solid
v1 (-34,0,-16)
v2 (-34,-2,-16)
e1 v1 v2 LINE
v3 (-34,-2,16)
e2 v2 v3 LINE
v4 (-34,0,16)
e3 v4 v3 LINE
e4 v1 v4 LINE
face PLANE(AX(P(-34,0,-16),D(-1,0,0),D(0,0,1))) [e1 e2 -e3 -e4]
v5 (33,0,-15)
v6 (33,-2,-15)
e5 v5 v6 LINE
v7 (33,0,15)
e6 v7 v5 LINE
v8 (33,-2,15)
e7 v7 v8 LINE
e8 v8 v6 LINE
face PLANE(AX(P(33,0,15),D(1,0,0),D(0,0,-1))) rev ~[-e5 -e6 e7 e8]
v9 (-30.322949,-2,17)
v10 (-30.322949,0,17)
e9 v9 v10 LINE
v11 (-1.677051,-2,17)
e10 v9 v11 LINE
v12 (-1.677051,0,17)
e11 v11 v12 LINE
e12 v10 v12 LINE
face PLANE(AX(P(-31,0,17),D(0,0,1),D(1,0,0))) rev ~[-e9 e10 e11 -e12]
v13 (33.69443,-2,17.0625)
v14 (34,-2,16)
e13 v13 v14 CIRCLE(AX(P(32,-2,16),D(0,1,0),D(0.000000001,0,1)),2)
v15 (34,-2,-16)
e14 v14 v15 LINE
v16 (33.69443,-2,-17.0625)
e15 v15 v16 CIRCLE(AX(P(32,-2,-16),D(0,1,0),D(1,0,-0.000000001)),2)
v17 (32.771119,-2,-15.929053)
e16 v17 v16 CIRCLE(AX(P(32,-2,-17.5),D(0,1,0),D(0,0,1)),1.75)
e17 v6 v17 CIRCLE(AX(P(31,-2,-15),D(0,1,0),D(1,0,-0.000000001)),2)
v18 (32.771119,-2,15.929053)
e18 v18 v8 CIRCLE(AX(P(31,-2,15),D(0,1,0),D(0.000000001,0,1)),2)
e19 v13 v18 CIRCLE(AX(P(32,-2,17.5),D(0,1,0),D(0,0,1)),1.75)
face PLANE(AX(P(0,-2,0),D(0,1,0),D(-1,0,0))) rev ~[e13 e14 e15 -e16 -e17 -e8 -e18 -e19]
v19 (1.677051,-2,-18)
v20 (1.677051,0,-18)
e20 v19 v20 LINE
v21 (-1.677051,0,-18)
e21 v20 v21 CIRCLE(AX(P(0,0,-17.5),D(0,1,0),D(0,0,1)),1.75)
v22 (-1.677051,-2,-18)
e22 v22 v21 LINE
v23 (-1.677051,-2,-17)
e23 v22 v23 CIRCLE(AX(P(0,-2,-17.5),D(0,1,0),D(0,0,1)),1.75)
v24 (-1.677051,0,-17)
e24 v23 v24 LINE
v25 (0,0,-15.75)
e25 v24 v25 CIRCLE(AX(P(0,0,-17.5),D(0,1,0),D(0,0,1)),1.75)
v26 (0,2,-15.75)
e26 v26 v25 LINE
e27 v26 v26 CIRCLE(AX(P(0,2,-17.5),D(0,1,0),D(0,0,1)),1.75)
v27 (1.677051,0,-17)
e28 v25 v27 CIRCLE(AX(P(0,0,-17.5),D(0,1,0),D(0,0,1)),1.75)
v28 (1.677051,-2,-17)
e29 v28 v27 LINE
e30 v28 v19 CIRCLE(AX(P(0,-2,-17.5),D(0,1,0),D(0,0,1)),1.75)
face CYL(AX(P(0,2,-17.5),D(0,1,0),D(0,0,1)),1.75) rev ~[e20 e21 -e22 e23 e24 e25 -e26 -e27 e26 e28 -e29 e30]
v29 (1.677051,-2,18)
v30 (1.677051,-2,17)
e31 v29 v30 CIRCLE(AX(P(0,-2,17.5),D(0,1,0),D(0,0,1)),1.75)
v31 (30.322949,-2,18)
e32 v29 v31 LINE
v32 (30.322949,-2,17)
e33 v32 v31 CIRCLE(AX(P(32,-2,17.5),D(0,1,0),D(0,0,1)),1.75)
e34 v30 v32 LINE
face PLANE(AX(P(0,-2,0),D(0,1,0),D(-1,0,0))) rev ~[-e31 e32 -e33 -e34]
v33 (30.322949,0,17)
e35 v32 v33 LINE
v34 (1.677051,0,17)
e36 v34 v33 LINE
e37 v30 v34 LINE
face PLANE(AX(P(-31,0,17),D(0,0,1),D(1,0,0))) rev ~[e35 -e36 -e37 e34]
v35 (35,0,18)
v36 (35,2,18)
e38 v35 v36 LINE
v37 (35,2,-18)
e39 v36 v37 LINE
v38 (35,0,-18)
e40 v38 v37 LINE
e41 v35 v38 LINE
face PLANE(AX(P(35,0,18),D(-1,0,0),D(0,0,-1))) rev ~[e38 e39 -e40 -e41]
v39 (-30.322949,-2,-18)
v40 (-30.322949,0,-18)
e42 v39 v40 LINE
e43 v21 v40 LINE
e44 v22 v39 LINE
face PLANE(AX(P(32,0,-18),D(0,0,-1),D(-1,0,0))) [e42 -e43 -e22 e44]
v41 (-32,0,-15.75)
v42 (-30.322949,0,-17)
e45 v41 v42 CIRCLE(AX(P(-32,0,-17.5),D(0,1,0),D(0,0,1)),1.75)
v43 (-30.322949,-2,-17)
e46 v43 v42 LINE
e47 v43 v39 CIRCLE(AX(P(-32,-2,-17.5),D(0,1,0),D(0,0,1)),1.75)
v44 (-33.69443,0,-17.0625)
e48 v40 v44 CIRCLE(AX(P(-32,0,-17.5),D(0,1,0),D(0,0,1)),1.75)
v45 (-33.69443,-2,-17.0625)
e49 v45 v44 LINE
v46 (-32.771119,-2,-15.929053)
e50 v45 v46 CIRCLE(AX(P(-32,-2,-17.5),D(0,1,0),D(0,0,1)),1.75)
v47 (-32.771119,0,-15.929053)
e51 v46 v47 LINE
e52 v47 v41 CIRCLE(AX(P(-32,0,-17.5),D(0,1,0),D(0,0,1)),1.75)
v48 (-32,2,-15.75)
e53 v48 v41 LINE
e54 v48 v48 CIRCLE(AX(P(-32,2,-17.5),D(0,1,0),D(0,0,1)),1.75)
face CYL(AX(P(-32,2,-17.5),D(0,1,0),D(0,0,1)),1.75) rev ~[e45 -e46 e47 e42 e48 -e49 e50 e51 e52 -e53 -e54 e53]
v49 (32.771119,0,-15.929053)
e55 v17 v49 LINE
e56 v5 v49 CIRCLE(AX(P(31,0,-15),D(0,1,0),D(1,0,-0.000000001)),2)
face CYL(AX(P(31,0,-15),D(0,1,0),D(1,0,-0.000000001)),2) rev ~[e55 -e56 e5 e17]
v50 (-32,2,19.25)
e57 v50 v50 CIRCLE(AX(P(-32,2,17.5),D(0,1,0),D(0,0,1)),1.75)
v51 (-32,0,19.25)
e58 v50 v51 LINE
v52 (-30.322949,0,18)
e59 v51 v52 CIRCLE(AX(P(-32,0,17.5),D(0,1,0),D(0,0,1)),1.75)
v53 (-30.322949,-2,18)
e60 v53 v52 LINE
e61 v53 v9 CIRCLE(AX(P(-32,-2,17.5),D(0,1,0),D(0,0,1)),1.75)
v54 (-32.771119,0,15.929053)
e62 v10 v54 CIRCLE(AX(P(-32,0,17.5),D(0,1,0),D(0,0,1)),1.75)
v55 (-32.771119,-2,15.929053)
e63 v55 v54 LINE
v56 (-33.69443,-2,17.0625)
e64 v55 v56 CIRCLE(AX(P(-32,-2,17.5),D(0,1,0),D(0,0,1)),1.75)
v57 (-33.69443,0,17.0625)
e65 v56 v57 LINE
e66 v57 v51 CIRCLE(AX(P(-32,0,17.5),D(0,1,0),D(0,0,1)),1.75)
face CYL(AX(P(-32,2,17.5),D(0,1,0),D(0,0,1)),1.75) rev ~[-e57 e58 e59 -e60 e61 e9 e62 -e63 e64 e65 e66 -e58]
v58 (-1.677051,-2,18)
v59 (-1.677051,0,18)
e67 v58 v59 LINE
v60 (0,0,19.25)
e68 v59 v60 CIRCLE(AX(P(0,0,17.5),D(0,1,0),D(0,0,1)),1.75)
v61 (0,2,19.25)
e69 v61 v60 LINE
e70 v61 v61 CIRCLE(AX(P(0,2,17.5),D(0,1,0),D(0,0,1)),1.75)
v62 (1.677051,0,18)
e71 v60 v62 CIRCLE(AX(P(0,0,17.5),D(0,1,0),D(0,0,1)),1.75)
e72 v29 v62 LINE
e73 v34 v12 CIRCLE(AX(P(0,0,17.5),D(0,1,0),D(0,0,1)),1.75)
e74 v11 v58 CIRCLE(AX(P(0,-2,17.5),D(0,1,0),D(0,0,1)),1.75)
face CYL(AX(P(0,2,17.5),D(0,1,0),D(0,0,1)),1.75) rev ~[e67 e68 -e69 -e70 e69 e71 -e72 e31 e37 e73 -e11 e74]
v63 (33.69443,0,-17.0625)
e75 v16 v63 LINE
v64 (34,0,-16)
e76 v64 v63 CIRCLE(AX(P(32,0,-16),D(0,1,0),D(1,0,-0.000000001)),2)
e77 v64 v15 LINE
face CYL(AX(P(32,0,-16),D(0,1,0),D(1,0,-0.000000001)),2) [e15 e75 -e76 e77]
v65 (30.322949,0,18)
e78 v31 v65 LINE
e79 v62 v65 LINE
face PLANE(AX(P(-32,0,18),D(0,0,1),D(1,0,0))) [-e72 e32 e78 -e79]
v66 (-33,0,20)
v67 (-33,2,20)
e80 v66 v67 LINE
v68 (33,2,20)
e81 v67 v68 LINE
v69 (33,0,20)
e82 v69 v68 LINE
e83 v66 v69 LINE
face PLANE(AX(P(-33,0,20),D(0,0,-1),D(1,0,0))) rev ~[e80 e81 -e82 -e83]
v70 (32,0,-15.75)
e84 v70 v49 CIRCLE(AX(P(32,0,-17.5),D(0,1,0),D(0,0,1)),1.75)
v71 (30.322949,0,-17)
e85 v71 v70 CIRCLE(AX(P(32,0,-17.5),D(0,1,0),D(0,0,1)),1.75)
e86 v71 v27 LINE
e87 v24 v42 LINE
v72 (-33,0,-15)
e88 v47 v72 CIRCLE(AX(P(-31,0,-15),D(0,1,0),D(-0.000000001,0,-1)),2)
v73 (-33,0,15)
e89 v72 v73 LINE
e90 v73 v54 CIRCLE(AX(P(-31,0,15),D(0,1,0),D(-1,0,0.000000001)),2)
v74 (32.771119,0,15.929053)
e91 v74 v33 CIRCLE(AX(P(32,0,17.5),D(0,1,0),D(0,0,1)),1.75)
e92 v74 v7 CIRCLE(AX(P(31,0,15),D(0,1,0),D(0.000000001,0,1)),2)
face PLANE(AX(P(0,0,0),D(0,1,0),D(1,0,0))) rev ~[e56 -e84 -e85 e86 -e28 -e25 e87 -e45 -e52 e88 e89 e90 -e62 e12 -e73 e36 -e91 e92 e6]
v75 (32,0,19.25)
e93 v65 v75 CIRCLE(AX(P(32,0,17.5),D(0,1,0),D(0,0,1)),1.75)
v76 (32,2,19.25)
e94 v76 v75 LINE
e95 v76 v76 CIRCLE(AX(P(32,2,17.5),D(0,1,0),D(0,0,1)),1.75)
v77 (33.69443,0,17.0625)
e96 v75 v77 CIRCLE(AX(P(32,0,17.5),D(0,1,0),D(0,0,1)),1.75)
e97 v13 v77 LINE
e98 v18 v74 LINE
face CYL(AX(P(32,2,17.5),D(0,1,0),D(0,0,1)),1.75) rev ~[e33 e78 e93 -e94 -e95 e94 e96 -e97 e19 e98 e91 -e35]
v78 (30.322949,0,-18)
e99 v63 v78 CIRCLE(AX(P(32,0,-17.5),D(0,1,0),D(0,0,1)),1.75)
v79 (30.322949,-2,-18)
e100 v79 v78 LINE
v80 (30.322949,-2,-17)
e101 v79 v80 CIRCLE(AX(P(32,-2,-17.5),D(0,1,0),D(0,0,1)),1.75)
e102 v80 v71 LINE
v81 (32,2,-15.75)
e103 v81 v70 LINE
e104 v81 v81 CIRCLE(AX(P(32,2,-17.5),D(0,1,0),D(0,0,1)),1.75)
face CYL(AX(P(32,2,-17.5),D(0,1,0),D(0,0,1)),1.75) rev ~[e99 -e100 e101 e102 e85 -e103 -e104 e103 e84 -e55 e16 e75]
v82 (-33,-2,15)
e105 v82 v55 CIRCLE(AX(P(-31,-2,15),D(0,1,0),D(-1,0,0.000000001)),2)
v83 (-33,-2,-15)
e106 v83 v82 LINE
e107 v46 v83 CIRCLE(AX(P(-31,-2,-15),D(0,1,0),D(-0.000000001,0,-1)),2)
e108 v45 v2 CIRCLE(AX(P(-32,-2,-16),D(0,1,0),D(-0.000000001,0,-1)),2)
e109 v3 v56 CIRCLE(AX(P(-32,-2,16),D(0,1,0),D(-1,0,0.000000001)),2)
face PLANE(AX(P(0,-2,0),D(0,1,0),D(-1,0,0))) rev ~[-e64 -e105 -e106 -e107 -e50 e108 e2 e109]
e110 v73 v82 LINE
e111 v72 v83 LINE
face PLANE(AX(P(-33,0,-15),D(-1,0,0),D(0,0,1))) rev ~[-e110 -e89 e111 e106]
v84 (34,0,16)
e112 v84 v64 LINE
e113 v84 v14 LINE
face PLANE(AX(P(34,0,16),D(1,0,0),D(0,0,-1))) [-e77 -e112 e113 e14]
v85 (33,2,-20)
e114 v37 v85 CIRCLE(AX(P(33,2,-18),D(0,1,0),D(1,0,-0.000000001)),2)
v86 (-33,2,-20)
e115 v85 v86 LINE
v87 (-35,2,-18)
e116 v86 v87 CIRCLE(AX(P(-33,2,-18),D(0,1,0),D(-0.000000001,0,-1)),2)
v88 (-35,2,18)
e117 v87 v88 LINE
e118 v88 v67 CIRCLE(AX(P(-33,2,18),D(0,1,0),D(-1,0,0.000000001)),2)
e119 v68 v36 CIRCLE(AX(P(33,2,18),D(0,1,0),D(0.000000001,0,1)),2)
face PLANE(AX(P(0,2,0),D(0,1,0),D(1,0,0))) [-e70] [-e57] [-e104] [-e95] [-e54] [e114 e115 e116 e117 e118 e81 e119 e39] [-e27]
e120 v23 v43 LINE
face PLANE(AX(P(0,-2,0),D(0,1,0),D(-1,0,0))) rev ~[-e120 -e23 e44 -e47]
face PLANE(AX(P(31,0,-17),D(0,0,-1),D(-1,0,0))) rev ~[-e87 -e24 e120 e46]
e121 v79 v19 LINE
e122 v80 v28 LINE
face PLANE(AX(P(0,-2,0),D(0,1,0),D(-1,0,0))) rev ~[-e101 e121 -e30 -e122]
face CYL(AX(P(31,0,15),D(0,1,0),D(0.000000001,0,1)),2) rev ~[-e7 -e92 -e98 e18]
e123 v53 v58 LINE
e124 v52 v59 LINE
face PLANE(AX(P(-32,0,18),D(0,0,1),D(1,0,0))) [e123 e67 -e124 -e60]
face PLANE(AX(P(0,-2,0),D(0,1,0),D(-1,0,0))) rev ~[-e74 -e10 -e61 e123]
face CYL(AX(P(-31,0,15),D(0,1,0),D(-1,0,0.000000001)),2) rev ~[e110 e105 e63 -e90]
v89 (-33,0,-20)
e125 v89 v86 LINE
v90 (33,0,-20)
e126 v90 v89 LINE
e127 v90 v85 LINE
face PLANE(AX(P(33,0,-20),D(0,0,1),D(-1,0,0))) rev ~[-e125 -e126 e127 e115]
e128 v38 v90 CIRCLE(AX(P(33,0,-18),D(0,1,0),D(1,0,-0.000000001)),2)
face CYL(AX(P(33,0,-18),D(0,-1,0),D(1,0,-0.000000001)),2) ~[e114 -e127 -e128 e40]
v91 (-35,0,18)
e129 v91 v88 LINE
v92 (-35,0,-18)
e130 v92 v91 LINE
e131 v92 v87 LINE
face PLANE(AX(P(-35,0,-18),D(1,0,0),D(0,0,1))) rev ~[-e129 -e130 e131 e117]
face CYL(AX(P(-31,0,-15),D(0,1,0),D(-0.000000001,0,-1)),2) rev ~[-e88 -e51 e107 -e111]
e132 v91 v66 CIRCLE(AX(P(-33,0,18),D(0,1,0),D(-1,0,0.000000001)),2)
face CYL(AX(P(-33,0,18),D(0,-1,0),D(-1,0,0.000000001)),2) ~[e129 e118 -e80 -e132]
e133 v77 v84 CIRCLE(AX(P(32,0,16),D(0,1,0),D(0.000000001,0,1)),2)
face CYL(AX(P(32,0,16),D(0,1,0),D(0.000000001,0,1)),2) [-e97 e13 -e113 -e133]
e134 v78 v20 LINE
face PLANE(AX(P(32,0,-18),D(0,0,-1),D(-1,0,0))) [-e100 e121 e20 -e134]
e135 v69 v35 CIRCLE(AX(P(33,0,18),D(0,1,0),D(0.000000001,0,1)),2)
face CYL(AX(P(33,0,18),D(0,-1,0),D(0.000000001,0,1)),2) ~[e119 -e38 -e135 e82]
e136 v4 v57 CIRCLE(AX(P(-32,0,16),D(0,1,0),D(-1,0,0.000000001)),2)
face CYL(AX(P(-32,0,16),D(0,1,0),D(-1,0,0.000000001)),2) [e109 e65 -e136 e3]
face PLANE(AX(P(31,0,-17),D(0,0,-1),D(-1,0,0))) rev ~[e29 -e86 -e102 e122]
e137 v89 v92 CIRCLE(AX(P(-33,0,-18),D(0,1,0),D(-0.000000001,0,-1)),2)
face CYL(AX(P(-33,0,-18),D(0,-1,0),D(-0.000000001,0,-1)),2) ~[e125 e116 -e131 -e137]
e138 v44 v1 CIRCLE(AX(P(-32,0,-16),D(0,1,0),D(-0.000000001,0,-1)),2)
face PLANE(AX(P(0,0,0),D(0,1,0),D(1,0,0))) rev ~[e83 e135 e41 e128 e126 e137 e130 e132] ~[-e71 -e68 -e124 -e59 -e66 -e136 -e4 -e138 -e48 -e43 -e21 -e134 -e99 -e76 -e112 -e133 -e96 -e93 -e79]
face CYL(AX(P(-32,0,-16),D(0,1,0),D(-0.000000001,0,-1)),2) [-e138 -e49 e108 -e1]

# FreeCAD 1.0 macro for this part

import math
import FreeCAD as App
import Part
import Sketcher

doc = App.newDocument("Part")
body = doc.addObject("PartDesign::Body", "Body")

# Sketch on XZ plane
sketch1 = body.newObject("Sketcher::SketchObject", "Sketch")
sketch1.AttachmentSupport = (doc.getObject("XZ_Plane"), [""])
sketch1.MapMode = "FlatFace"
sketch1.addGeometry(Part.LineSegment(App.Vector(-33, 20, 0), App.Vector(33, 20, 0)), False)
sketch1.addGeometry(Part.ArcOfCircle(Part.Circle(App.Vector(33, 18, 0), App.Vector(0, 0, 1), 2), math.radians(0), math.radians(90)), False)
sketch1.addGeometry(Part.LineSegment(App.Vector(35, 18, 0), App.Vector(35, -18, 0)), False)
sketch1.addGeometry(Part.ArcOfCircle(Part.Circle(App.Vector(33, -18, 0), App.Vector(0, 0, 1), 2), math.radians(-90), math.radians(0)), False)
sketch1.addGeometry(Part.LineSegment(App.Vector(33, -20, 0), App.Vector(-33, -20, 0)), False)
sketch1.addGeometry(Part.ArcOfCircle(Part.Circle(App.Vector(-33, -18, 0), App.Vector(0, 0, 1), 2), math.radians(-180), math.radians(-90)), False)
sketch1.addGeometry(Part.LineSegment(App.Vector(-35, -18, 0), App.Vector(-35, 18, 0)), False)
sketch1.addGeometry(Part.ArcOfCircle(Part.Circle(App.Vector(-33, 18, 0), App.Vector(0, 0, 1), 2), math.radians(90), math.radians(180)), False)
sketch1.addConstraint(Sketcher.Constraint("Tangent", 0, 2, 1, 2))
sketch1.addConstraint(Sketcher.Constraint("Tangent", 1, 1, 2, 1))
sketch1.addConstraint(Sketcher.Constraint("Tangent", 2, 2, 3, 2))
sketch1.addConstraint(Sketcher.Constraint("Tangent", 3, 1, 4, 1))
sketch1.addConstraint(Sketcher.Constraint("Tangent", 4, 2, 5, 2))
sketch1.addConstraint(Sketcher.Constraint("Tangent", 5, 1, 6, 1))
sketch1.addConstraint(Sketcher.Constraint("Tangent", 6, 2, 7, 2))
sketch1.addConstraint(Sketcher.Constraint("Tangent", 7, 1, 0, 1))
sketch1.addConstraint(Sketcher.Constraint("Horizontal", 0))
sketch1.addConstraint(Sketcher.Constraint("Vertical", 2))
sketch1.addConstraint(Sketcher.Constraint("Horizontal", 4))
sketch1.addConstraint(Sketcher.Constraint("Vertical", 6))
sketch1.addConstraint(Sketcher.Constraint("Equal", 1, 3))
sketch1.addConstraint(Sketcher.Constraint("Equal", 3, 5))
sketch1.addConstraint(Sketcher.Constraint("Equal", 5, 7))
sketch1.addConstraint(Sketcher.Constraint("Symmetric", 1, 3, 5, 3, -1, 1))
sketch1.addConstraint(Sketcher.Constraint("Radius", 1, 2.0))
sketch1.addConstraint(Sketcher.Constraint("DistanceX", 0, 1, 0, 2, 66.0))
sketch1.addConstraint(Sketcher.Constraint("DistanceY", 2, 2, 2, 1, 36.0))
pad1 = body.newObject("PartDesign::Pad", "Pad")
pad1.Profile = sketch1
pad1.Length = 2
pad1.Reversed = True

# Sketch on XZ plane
sketch2 = body.newObject("Sketcher::SketchObject", "Sketch001")
sketch2.AttachmentSupport = (doc.getObject("XZ_Plane"), [""])
sketch2.MapMode = "FlatFace"
sketch2.addGeometry(Part.LineSegment(App.Vector(32, 18, 0), App.Vector(-32, 18, 0)), False)
sketch2.addGeometry(Part.ArcOfCircle(Part.Circle(App.Vector(-32, 16, 0), App.Vector(0, 0, 1), 2), math.radians(90), math.radians(180)), False)
sketch2.addGeometry(Part.LineSegment(App.Vector(-34, 16, 0), App.Vector(-34, -16, 0)), False)
sketch2.addGeometry(Part.ArcOfCircle(Part.Circle(App.Vector(-32, -16, 0), App.Vector(0, 0, 1), 2), math.radians(-180), math.radians(-90)), False)
sketch2.addGeometry(Part.LineSegment(App.Vector(-32, -18, 0), App.Vector(32, -18, 0)), False)
sketch2.addGeometry(Part.ArcOfCircle(Part.Circle(App.Vector(32, -16, 0), App.Vector(0, 0, 1), 2), math.radians(-90), math.radians(0)), False)
sketch2.addGeometry(Part.LineSegment(App.Vector(34, -16, 0), App.Vector(34, 16, 0)), False)
sketch2.addGeometry(Part.ArcOfCircle(Part.Circle(App.Vector(32, 16, 0), App.Vector(0, 0, 1), 2), math.radians(0), math.radians(90)), False)
sketch2.addGeometry(Part.LineSegment(App.Vector(-31, 17, 0), App.Vector(31, 17, 0)), False)
sketch2.addGeometry(Part.ArcOfCircle(Part.Circle(App.Vector(31, 15, 0), App.Vector(0, 0, 1), 2), math.radians(0), math.radians(90)), False)
sketch2.addGeometry(Part.LineSegment(App.Vector(33, 15, 0), App.Vector(33, -15, 0)), False)
sketch2.addGeometry(Part.ArcOfCircle(Part.Circle(App.Vector(31, -15, 0), App.Vector(0, 0, 1), 2), math.radians(-90), math.radians(0)), False)
sketch2.addGeometry(Part.LineSegment(App.Vector(31, -17, 0), App.Vector(-31, -17, 0)), False)
sketch2.addGeometry(Part.ArcOfCircle(Part.Circle(App.Vector(-31, -15, 0), App.Vector(0, 0, 1), 2), math.radians(-180), math.radians(-90)), False)
sketch2.addGeometry(Part.LineSegment(App.Vector(-33, -15, 0), App.Vector(-33, 15, 0)), False)
sketch2.addGeometry(Part.ArcOfCircle(Part.Circle(App.Vector(-31, 15, 0), App.Vector(0, 0, 1), 2), math.radians(90), math.radians(180)), False)
sketch2.addConstraint(Sketcher.Constraint("Tangent", 0, 2, 1, 1))
sketch2.addConstraint(Sketcher.Constraint("Tangent", 1, 2, 2, 1))
sketch2.addConstraint(Sketcher.Constraint("Tangent", 2, 2, 3, 1))
sketch2.addConstraint(Sketcher.Constraint("Tangent", 3, 2, 4, 1))
sketch2.addConstraint(Sketcher.Constraint("Tangent", 4, 2, 5, 1))
sketch2.addConstraint(Sketcher.Constraint("Tangent", 5, 2, 6, 1))
sketch2.addConstraint(Sketcher.Constraint("Tangent", 6, 2, 7, 1))
sketch2.addConstraint(Sketcher.Constraint("Tangent", 7, 2, 0, 1))
sketch2.addConstraint(Sketcher.Constraint("Tangent", 8, 2, 9, 2))
sketch2.addConstraint(Sketcher.Constraint("Tangent", 9, 1, 10, 1))
sketch2.addConstraint(Sketcher.Constraint("Tangent", 10, 2, 11, 2))
sketch2.addConstraint(Sketcher.Constraint("Tangent", 11, 1, 12, 1))
sketch2.addConstraint(Sketcher.Constraint("Tangent", 12, 2, 13, 2))
sketch2.addConstraint(Sketcher.Constraint("Tangent", 13, 1, 14, 1))
sketch2.addConstraint(Sketcher.Constraint("Tangent", 14, 2, 15, 2))
sketch2.addConstraint(Sketcher.Constraint("Tangent", 15, 1, 8, 1))
sketch2.addConstraint(Sketcher.Constraint("Horizontal", 0))
sketch2.addConstraint(Sketcher.Constraint("Vertical", 2))
sketch2.addConstraint(Sketcher.Constraint("Horizontal", 4))
sketch2.addConstraint(Sketcher.Constraint("Vertical", 6))
sketch2.addConstraint(Sketcher.Constraint("Horizontal", 8))
sketch2.addConstraint(Sketcher.Constraint("Vertical", 10))
sketch2.addConstraint(Sketcher.Constraint("Horizontal", 12))
sketch2.addConstraint(Sketcher.Constraint("Vertical", 14))
sketch2.addConstraint(Sketcher.Constraint("Equal", 1, 3))
sketch2.addConstraint(Sketcher.Constraint("Equal", 3, 5))
sketch2.addConstraint(Sketcher.Constraint("Equal", 5, 7))
sketch2.addConstraint(Sketcher.Constraint("Equal", 7, 9))
sketch2.addConstraint(Sketcher.Constraint("Equal", 9, 11))
sketch2.addConstraint(Sketcher.Constraint("Equal", 11, 13))
sketch2.addConstraint(Sketcher.Constraint("Equal", 13, 15))
sketch2.addConstraint(Sketcher.Constraint("Symmetric", 1, 3, 5, 3, -1, 1))
sketch2.addConstraint(Sketcher.Constraint("Symmetric", 9, 3, 13, 3, -1, 1))
sketch2.addConstraint(Sketcher.Constraint("Radius", 1, 2.0))
sketch2.addConstraint(Sketcher.Constraint("DistanceX", 0, 2, 0, 1, 64.0))
sketch2.addConstraint(Sketcher.Constraint("DistanceX", 8, 1, 8, 2, 62.0))
sketch2.addConstraint(Sketcher.Constraint("DistanceY", 2, 2, 2, 1, 32.0))
sketch2.addConstraint(Sketcher.Constraint("DistanceY", 10, 2, 10, 1, 30.0))
pad2 = body.newObject("PartDesign::Pad", "Pad001")
pad2.Profile = sketch2
pad2.Length = 2

# Sketch on XZ plane
sketch3 = body.newObject("Sketcher::SketchObject", "Sketch002")
sketch3.AttachmentSupport = (doc.getObject("XZ_Plane"), [""])
sketch3.MapMode = "FlatFace"
sketch3.AttachmentOffset = App.Placement(App.Vector(0, 0, -2), App.Rotation())
sketch3.addGeometry(Part.Circle(App.Vector(-32, -17.5, 0), App.Vector(0, 0, 1), 1.75), False)
sketch3.addGeometry(Part.Circle(App.Vector(0, -17.5, 0), App.Vector(0, 0, 1), 1.75), False)
sketch3.addGeometry(Part.Circle(App.Vector(32, -17.5, 0), App.Vector(0, 0, 1), 1.75), False)
sketch3.addGeometry(Part.Circle(App.Vector(32, 17.5, 0), App.Vector(0, 0, 1), 1.75), False)
sketch3.addGeometry(Part.Circle(App.Vector(0, 17.5, 0), App.Vector(0, 0, 1), 1.75), False)
sketch3.addGeometry(Part.Circle(App.Vector(-32, 17.5, 0), App.Vector(0, 0, 1), 1.75), False)
sketch3.addConstraint(Sketcher.Constraint("Equal", 0, 1))
sketch3.addConstraint(Sketcher.Constraint("Equal", 1, 2))
sketch3.addConstraint(Sketcher.Constraint("Equal", 2, 3))
sketch3.addConstraint(Sketcher.Constraint("Equal", 3, 4))
sketch3.addConstraint(Sketcher.Constraint("Equal", 4, 5))
sketch3.addConstraint(Sketcher.Constraint("Symmetric", 0, 3, 3, 3, -1, 1))
sketch3.addConstraint(Sketcher.Constraint("Symmetric", 1, 3, 4, 3, -1, 1))
sketch3.addConstraint(Sketcher.Constraint("Symmetric", 2, 3, 5, 3, -1, 1))
sketch3.addConstraint(Sketcher.Constraint("Symmetric", 0, 3, 2, 3, -2))
sketch3.addConstraint(Sketcher.Constraint("PointOnObject", 1, 3, -2))
sketch3.addConstraint(Sketcher.Constraint("Horizontal", 0, 3, 1, 3))
sketch3.addConstraint(Sketcher.Constraint("Diameter", 0, 3.5))
sketch3.addConstraint(Sketcher.Constraint("DistanceX", 0, 3, -1, 1, 32.0))
sketch3.addConstraint(Sketcher.Constraint("DistanceY", 2, 3, 3, 3, 35.0))
pocket1 = body.newObject("PartDesign::Pocket", "Pocket")
pocket1.Profile = sketch3
pocket1.Length = 10
pocket1.Reversed = True

doc.recompute()
